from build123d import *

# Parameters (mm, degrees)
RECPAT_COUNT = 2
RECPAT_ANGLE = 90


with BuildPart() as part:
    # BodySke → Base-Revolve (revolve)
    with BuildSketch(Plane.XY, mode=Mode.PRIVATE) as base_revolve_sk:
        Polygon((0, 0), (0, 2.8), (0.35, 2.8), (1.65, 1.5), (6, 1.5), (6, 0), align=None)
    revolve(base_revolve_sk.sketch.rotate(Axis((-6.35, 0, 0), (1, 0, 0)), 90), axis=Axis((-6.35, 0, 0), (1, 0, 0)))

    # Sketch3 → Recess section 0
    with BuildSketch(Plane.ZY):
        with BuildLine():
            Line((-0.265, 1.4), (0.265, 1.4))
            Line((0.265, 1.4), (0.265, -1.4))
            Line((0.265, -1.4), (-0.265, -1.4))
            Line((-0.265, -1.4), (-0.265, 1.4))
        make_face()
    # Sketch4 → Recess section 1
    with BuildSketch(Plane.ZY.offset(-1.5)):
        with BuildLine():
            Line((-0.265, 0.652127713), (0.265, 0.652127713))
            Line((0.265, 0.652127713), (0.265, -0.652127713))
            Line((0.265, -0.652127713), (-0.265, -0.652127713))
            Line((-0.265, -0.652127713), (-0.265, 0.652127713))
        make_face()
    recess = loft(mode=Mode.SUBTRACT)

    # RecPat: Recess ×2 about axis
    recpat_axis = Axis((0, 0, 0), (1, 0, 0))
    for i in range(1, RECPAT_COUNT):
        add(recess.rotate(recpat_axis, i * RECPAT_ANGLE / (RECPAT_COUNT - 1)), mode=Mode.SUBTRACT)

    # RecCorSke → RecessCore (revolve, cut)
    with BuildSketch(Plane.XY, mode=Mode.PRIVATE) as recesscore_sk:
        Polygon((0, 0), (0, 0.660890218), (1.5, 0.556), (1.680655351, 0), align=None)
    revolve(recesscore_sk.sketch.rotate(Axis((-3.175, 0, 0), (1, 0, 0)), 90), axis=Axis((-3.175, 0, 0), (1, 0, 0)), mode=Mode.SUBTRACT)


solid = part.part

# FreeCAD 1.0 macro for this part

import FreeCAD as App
import Part
import Sketcher

V = App.Vector
Q = App.Units.Quantity


def add_polygon(sketch, points):
    """Adds a closed chain of lines whose ends are joined by coincident constraints."""
    first, n = sketch.GeometryCount, len(points)
    for a, b in zip(points, points[1:] + points[:1]):
        sketch.addGeometry(Part.LineSegment(App.Vector(*a, 0), App.Vector(*b, 0)), False)
    for i in range(n):
        sketch.addConstraint(Sketcher.Constraint("Coincident", first + i, 2, first + (i + 1) % n, 1))

doc = App.newDocument("Part")
body = doc.addObject("PartDesign::Body", "Body")

sketch1 = body.newObject("Sketcher::SketchObject", "Sketch")
sketch1.AttachmentSupport = (doc.getObject("XY_Plane"), [""])
sketch1.MapMode = "FlatFace"
add_polygon(sketch1, [(0, 2.8), (0, 0), (6, 0), (6, 1.5), (1.65, 1.5), (0.35, 2.8)])
sketch1.addConstraint([
    Sketcher.Constraint("Vertical", 0),
    Sketcher.Constraint("Horizontal", 1),
    Sketcher.Constraint("Vertical", 2),
    Sketcher.Constraint("Horizontal", 3),
    Sketcher.Constraint("Horizontal", 5),
    Sketcher.Constraint("Coincident", 0, 2, -1, 1),
    Sketcher.Constraint("DistanceX", 1, 1, 1, 2, 6.0),
    Sketcher.Constraint("Angle", 4, Q("135 deg")),
    Sketcher.Constraint("DistanceY", 0, 2, 0, 1, 2.8),
    Sketcher.Constraint("DistanceY", 2, 1, 2, 2, 1.5),
    Sketcher.Constraint("DistanceX", 3, 2, 3, 1, 4.35),
])
revolution = body.newObject("PartDesign::Revolution", "Revolution")
revolution.Profile = sketch1
revolution.ReferenceAxis = (sketch1, ["H_Axis"])
revolution.Angle = 360

sketch2 = body.newObject("Sketcher::SketchObject", "Sketch001")
sketch2.AttachmentSupport = (doc.getObject("YZ_Plane"), [""])
sketch2.MapMode = "FlatFace"
add_polygon(sketch2, [(1.4, 0.265), (1.4, -0.265), (-1.4, -0.265), (-1.4, 0.265)])
sketch2.addConstraint([
    Sketcher.Constraint("Vertical", 0),
    Sketcher.Constraint("Horizontal", 1),
    Sketcher.Constraint("Vertical", 2),
    Sketcher.Constraint("Horizontal", 3),
    Sketcher.Constraint("Symmetric", 0, 2, 2, 2, -1, 1),
    Sketcher.Constraint("DistanceX", 1, 2, 1, 1, 2.8),
    Sketcher.Constraint("DistanceY", 0, 2, 0, 1, 0.53),
])

sketch3 = body.newObject("Sketcher::SketchObject", "Sketch002")
sketch3.AttachmentSupport = (doc.getObject("YZ_Plane"), [""])
sketch3.MapMode = "FlatFace"
sketch3.AttachmentOffset = App.Placement(V(0, 0, 1.5), App.Rotation())
add_polygon(sketch3, [(0.652128, 0.265), (0.652128, -0.265), (-0.652128, -0.265), (-0.652128, 0.265)])
sketch3.addConstraint([
    Sketcher.Constraint("Vertical", 0),
    Sketcher.Constraint("Horizontal", 1),
    Sketcher.Constraint("Vertical", 2),
    Sketcher.Constraint("Horizontal", 3),
    Sketcher.Constraint("Symmetric", 0, 2, 2, 2, -1, 1),
    Sketcher.Constraint("DistanceY", 0, 2, 0, 1, 0.53),
    Sketcher.Constraint("DistanceX", 1, 2, 1, 1, 1.304255),
])

subtractiveloft = body.newObject("PartDesign::SubtractiveLoft", "SubtractiveLoft")
subtractiveloft.Profile = sketch2
subtractiveloft.Sections = [sketch3]
doc.recompute()

polarpattern = body.newObject("PartDesign::PolarPattern", "PolarPattern")
polarpattern.Originals = [subtractiveloft]
polarpattern.Axis = (doc.getObject("X_Axis"), [""])
polarpattern.Angle = 90
polarpattern.Occurrences = 2
body.Tip = polarpattern

sketch4 = body.newObject("Sketcher::SketchObject", "Sketch003")
sketch4.AttachmentSupport = (doc.getObject("XY_Plane"), [""])
sketch4.MapMode = "FlatFace"
add_polygon(sketch4, [(0, 0.66089), (0, 0), (1.680655, 0), (1.5, 0.556)])
sketch4.addConstraint([
    Sketcher.Constraint("Vertical", 0),
    Sketcher.Constraint("Horizontal", 1),
    Sketcher.Constraint("Coincident", 0, 2, -1, 1),
    Sketcher.Constraint("Angle", 2, Q("108 deg")),
    Sketcher.Constraint("Angle", 3, Q("176 deg")),
    Sketcher.Constraint("DistanceX", -1, 1, 2, 2, 1.5),
    Sketcher.Constraint("DistanceY", -1, 1, 2, 2, 0.556),
])
groove = body.newObject("PartDesign::Groove", "Groove")
groove.Profile = sketch4
groove.ReferenceAxis = (sketch4, ["H_Axis"])
groove.Angle = 360

doc.recompute()
